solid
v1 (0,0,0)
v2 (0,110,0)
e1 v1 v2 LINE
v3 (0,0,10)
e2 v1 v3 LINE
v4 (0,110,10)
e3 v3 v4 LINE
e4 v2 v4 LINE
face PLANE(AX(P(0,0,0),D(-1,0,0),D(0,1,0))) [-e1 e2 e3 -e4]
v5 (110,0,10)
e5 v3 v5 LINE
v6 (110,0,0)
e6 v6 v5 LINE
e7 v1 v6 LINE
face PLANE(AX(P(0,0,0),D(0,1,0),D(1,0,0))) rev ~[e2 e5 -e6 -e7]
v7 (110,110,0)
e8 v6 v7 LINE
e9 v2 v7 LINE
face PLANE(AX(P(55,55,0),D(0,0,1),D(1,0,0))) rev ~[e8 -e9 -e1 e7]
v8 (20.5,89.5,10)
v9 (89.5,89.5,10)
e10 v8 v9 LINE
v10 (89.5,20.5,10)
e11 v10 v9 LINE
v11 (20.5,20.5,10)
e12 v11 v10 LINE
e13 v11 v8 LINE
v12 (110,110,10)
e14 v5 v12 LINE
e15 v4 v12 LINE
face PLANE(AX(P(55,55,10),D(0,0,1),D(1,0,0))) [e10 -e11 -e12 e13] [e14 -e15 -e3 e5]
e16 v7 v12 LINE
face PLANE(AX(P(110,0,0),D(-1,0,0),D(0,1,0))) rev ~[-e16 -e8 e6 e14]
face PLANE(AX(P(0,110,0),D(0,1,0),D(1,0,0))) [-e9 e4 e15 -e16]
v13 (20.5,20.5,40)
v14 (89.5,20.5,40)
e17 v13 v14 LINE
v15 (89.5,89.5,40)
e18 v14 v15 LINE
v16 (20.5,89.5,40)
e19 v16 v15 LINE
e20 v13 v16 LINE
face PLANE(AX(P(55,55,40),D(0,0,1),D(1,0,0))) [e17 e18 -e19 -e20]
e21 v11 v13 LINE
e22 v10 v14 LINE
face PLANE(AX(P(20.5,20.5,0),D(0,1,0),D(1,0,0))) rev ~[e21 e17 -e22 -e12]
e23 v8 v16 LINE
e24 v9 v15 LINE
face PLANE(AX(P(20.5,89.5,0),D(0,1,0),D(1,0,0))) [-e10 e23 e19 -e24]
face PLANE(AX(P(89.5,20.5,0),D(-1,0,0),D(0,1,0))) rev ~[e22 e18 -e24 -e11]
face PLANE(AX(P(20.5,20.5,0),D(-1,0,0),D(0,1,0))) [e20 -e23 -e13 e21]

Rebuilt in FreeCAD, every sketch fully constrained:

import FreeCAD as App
import Part
import Sketcher
from FreeCAD import Vector


def add_polygon(sketch, points):
    """Adds a closed chain of lines whose ends are joined by coincident constraints."""
    first, n = sketch.GeometryCount, len(points)
    for a, b in zip(points, points[1:] + points[:1]):
        sketch.addGeometry(Part.LineSegment(App.Vector(*a, 0), App.Vector(*b, 0)), False)
    for i in range(n):
        sketch.addConstraint(Sketcher.Constraint("Coincident", first + i, 2, first + (i + 1) % n, 1))

doc = App.newDocument("Part")
body = doc.addObject("PartDesign::Body", "Body")

# Sketch on XY plane
sketch1 = doc.addObject("Sketcher::SketchObject", "Sketch")
body.addObject(sketch1)
sketch1.AttachmentSupport = (doc.XY_Plane, [""])
sketch1.MapMode = "FlatFace"
add_polygon(sketch1, [(0, 110), (0, 0), (110, 0), (110, 110)])  # lines 0-3
add_polygon(sketch1, [(90, 20), (20, 20), (20, 90), (90, 90)])  # lines 4-7
sketch1.addConstraint(Sketcher.Constraint("Vertical", 0))
sketch1.addConstraint(Sketcher.Constraint("Horizontal", 1))
sketch1.addConstraint(Sketcher.Constraint("Vertical", 2))
sketch1.addConstraint(Sketcher.Constraint("Horizontal", 3))
sketch1.addConstraint(Sketcher.Constraint("Horizontal", 4))
sketch1.addConstraint(Sketcher.Constraint("Vertical", 5))
sketch1.addConstraint(Sketcher.Constraint("Horizontal", 6))
sketch1.addConstraint(Sketcher.Constraint("Vertical", 7))
sketch1.addConstraint(Sketcher.Constraint("Coincident", 0, 2, -1, 1))
sketch1.addConstraint(Sketcher.Constraint("Equal", 3, 0))
sketch1.addConstraint(Sketcher.Constraint("Equal", 6, 5))
sketch1.addConstraint(Sketcher.Constraint("DistanceX", 1, 1, 1, 2, 110.0))
sketch1.addConstraint(Sketcher.Constraint("DistanceX", 4, 2, 4, 1, 69.0))
sketch1.addConstraint(Sketcher.Constraint("DistanceX", -1, 1, 4, 2, 20.5))
sketch1.addConstraint(Sketcher.Constraint("DistanceY", -1, 1, 4, 2, 20.5))
pad1 = doc.addObject("PartDesign::Pad", "Pad")
body.addObject(pad1)
pad1.Profile = sketch1
pad1.Length = 10

# Sketch on XY plane
sketch2 = doc.addObject("Sketcher::SketchObject", "Sketch001")
body.addObject(sketch2)
sketch2.AttachmentSupport = (doc.XY_Plane, [""])
sketch2.MapMode = "FlatFace"
add_polygon(sketch2, [(20, 90), (20, 20), (90, 20), (90, 90)])  # lines 0-3
sketch2.addConstraint(Sketcher.Constraint("Vertical", 0))
sketch2.addConstraint(Sketcher.Constraint("Horizontal", 1))
sketch2.addConstraint(Sketcher.Constraint("Vertical", 2))
sketch2.addConstraint(Sketcher.Constraint("Horizontal", 3))
sketch2.addConstraint(Sketcher.Constraint("Equal", 3, 0))
sketch2.addConstraint(Sketcher.Constraint("DistanceX", 1, 1, 1, 2, 69.0))
sketch2.addConstraint(Sketcher.Constraint("DistanceX", -1, 1, 0, 2, 20.5))
sketch2.addConstraint(Sketcher.Constraint("DistanceY", -1, 1, 0, 2, 20.5))
pad2 = doc.addObject("PartDesign::Pad", "Pad001")
body.addObject(pad2)
pad2.Profile = sketch2
pad2.Length = 40

doc.recompute()
